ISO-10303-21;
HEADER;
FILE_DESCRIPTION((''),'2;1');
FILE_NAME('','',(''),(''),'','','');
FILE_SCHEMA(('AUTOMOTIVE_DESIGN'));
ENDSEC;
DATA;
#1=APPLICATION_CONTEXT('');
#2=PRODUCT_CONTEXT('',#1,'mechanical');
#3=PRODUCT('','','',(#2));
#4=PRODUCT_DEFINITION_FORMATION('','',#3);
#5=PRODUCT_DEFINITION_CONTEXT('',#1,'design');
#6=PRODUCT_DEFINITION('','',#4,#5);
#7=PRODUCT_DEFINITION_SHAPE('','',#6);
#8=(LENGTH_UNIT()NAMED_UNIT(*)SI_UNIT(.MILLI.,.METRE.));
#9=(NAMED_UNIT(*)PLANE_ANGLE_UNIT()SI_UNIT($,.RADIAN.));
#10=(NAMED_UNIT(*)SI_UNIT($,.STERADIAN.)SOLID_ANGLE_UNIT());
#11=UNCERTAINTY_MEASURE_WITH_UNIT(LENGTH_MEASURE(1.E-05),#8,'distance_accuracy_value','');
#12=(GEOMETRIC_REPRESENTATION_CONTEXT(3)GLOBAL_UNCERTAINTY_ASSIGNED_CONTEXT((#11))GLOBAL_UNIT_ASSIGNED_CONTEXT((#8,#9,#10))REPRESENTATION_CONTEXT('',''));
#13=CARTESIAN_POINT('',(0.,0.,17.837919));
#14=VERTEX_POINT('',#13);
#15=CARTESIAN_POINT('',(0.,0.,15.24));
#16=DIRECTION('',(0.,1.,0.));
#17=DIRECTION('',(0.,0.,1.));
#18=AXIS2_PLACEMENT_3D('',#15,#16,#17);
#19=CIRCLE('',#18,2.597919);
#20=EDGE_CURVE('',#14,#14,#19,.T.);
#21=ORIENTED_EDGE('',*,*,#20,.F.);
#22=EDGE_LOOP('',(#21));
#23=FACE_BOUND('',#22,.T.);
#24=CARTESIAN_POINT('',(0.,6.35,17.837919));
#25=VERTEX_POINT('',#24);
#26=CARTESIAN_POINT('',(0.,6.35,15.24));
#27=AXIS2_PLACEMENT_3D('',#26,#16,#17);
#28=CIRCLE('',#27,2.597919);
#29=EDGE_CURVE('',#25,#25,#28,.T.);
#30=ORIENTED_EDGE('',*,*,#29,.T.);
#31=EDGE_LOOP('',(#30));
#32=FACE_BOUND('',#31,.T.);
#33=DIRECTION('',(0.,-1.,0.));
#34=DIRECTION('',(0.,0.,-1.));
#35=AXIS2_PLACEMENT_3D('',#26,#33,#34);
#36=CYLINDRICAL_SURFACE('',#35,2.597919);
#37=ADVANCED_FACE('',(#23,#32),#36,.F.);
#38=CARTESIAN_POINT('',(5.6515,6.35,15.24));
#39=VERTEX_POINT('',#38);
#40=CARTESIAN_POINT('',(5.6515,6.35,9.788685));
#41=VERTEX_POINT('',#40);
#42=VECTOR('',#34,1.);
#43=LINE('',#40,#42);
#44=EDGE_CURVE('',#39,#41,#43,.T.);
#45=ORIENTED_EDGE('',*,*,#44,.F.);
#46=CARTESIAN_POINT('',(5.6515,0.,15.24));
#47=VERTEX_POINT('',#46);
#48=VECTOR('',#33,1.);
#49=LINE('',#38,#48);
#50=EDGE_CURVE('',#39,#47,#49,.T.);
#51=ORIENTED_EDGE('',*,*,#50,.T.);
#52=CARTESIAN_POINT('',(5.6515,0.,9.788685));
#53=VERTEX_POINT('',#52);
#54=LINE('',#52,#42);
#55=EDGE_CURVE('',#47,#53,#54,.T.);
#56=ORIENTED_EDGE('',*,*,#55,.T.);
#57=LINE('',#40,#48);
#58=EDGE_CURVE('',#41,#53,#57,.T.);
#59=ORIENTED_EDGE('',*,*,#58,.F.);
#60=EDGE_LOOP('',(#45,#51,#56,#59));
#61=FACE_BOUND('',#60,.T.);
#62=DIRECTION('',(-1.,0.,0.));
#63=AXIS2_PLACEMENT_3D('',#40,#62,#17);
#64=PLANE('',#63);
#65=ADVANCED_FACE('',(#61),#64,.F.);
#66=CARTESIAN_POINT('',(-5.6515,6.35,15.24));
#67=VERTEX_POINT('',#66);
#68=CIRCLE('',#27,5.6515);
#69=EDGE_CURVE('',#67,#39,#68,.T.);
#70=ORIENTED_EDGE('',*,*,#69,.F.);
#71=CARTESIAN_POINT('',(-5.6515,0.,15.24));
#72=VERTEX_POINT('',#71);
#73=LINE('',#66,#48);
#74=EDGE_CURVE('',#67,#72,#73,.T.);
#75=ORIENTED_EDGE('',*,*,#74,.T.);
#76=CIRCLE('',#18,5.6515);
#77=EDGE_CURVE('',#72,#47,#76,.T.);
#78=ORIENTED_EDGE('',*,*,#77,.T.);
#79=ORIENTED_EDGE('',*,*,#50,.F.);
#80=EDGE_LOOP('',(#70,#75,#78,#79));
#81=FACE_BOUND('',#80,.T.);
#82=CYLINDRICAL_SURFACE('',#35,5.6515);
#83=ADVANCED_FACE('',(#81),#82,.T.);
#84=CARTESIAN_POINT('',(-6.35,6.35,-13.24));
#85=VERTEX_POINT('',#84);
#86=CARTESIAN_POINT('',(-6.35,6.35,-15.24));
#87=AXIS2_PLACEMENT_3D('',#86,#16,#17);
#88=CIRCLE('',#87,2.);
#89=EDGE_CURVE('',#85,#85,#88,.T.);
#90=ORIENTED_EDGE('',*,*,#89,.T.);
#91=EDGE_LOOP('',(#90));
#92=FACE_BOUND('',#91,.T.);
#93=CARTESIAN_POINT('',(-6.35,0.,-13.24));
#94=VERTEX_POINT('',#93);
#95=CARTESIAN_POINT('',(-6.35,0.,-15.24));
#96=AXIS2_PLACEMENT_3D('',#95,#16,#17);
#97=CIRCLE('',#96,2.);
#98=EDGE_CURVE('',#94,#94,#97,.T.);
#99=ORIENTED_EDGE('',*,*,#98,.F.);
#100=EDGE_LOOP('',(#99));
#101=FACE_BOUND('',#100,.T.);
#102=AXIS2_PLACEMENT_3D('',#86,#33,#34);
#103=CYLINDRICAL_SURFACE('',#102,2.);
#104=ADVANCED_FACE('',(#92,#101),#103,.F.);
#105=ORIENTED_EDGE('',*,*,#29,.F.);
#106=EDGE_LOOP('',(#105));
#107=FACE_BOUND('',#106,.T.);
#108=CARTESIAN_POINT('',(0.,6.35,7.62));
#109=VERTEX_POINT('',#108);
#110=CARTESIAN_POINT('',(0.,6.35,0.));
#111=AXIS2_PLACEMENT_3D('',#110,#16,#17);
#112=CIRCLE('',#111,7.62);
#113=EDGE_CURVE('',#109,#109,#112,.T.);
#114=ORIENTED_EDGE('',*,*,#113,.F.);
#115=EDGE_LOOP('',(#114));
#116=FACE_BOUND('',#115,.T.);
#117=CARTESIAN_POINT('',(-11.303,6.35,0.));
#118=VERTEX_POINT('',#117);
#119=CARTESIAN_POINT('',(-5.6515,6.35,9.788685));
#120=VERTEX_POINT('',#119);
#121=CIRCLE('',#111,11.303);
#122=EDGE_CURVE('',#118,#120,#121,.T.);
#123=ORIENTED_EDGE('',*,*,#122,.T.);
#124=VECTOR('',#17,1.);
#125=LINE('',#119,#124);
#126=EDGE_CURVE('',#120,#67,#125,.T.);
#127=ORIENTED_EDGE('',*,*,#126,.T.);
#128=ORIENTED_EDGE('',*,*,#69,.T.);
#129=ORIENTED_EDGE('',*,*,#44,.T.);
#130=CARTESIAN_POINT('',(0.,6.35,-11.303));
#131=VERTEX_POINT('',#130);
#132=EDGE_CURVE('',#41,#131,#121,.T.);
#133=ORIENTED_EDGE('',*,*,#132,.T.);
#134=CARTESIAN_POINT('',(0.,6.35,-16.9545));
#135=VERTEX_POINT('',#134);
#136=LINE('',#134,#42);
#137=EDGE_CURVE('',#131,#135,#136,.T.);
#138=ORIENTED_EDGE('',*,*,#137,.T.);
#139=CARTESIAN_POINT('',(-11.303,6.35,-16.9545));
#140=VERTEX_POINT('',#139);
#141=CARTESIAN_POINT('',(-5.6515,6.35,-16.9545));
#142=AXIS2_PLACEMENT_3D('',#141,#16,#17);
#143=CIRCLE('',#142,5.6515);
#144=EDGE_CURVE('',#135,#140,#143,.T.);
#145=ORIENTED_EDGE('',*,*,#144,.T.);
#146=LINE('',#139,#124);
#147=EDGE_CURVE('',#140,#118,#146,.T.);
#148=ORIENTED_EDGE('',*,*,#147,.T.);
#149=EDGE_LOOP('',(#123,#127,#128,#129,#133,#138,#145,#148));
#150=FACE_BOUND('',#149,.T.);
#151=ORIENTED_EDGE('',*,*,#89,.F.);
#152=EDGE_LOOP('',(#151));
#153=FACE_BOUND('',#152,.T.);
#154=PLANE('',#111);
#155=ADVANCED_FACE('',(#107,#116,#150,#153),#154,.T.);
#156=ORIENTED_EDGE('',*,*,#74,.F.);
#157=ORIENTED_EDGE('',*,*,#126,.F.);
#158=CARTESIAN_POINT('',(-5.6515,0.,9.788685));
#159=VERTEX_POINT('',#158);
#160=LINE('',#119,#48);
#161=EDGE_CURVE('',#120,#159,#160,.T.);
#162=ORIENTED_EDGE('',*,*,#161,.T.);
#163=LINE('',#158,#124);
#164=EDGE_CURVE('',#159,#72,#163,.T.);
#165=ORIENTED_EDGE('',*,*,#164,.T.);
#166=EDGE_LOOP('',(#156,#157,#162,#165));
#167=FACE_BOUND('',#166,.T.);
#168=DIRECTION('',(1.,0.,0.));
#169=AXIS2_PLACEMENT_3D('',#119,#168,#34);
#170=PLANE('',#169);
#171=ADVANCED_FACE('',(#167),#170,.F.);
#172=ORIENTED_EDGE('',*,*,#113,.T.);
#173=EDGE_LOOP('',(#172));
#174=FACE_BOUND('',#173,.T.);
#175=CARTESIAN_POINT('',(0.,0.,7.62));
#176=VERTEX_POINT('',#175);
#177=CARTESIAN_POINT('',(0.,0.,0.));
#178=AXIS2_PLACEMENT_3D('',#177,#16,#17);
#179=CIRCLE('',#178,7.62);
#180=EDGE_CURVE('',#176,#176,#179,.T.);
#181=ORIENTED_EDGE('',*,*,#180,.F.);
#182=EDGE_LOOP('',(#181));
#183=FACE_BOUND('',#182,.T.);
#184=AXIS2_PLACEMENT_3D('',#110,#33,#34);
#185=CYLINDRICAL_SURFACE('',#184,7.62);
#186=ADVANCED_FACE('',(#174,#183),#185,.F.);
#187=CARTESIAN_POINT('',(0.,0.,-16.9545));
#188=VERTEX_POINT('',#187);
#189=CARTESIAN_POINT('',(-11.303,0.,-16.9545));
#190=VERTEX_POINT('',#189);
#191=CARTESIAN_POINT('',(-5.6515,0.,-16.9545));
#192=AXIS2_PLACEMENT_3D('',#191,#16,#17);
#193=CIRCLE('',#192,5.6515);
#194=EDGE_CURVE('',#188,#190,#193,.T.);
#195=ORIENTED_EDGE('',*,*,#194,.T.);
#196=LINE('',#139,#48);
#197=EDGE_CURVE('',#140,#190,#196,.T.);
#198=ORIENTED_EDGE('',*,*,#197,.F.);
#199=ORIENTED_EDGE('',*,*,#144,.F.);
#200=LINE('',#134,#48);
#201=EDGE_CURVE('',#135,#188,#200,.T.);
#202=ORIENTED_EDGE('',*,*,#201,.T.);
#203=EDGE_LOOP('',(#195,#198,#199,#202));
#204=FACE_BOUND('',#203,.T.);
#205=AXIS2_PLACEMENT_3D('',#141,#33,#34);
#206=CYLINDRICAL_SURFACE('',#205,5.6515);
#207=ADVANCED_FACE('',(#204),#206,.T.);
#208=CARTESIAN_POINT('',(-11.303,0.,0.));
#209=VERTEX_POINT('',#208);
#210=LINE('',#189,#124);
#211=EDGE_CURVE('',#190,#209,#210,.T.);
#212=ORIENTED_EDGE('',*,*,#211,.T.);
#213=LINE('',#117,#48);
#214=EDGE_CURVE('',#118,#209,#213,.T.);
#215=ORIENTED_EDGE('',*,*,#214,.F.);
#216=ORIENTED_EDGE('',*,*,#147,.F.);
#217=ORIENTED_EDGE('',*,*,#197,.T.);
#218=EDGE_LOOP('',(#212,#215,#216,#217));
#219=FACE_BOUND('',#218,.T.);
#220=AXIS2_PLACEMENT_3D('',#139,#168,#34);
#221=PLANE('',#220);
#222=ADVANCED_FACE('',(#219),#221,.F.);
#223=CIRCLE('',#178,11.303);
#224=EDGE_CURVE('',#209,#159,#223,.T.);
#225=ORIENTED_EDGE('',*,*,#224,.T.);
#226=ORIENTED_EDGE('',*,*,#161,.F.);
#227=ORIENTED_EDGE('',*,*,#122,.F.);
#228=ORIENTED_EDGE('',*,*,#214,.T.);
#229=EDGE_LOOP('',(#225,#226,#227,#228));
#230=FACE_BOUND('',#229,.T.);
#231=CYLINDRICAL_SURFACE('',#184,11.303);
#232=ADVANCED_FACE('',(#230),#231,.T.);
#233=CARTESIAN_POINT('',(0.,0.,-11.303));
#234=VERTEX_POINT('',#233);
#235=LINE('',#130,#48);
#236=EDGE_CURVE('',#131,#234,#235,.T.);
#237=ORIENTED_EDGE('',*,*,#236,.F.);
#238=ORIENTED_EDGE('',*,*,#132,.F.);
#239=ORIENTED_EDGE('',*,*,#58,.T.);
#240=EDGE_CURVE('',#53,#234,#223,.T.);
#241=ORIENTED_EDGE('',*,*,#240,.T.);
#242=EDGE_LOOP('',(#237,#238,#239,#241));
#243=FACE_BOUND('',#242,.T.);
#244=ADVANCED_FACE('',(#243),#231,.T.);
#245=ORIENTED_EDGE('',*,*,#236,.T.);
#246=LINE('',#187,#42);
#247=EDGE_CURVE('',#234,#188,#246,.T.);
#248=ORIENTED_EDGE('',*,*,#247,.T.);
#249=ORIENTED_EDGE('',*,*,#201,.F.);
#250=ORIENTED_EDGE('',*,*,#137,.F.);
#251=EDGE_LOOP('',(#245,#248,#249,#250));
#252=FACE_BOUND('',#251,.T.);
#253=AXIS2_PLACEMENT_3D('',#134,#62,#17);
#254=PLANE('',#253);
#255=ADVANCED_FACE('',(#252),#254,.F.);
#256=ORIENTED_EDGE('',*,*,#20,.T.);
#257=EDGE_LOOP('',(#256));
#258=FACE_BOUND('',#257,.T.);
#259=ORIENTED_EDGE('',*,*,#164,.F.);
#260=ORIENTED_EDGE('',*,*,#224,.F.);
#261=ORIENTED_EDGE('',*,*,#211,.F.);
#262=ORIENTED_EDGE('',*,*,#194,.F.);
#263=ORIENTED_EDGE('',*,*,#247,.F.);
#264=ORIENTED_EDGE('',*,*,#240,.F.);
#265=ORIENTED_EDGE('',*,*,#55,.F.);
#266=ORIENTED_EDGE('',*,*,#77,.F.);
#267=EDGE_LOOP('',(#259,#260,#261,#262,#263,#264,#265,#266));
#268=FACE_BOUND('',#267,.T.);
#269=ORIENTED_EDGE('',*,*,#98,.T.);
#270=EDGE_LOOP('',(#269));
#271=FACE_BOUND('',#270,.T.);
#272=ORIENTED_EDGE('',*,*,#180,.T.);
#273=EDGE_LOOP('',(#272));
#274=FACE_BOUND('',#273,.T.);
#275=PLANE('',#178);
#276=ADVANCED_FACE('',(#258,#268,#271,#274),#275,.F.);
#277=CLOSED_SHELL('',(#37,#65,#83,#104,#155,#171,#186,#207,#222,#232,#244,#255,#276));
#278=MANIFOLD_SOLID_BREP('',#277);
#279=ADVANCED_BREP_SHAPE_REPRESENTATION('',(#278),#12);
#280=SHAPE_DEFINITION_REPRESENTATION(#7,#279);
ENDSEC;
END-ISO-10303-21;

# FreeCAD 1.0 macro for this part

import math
import FreeCAD as App
import Part
import Sketcher

V = App.Vector
Q = App.Units.Quantity

doc = App.newDocument("Part")
body = doc.addObject("PartDesign::Body", "Body")

# Sketch on XZ plane
sketch1 = body.newObject("Sketcher::SketchObject", "Sketch")
sketch1.AttachmentSupport = (doc.getObject("XZ_Plane"), [""])
sketch1.MapMode = "FlatFace"
sketch1.addGeometry([
    Part.LineSegment(V(-11.3, -17, 0), V(-11.3, 0, 0)),  # 0
    Part.ArcOfCircle(Part.Circle(V(0, 0, 0), V(0, 0, 1), 11.3), math.radians(120), math.radians(180)),  # 1
    Part.LineSegment(V(-5.7, 9.8, 0), V(-5.7, 15.2, 0)),  # 2
    Part.ArcOfCircle(Part.Circle(V(0, 15.2, 0), V(0, 0, 1), 5.7), math.radians(0), math.radians(180)),  # 3
    Part.LineSegment(V(5.7, 15.2, 0), V(5.7, 9.8, 0)),  # 4
    Part.ArcOfCircle(Part.Circle(V(0, 0, 0), V(0, 0, 1), 11.3), math.radians(-90), math.radians(60)),  # 5
    Part.LineSegment(V(0, -11.3, 0), V(0, -17, 0)),  # 6
    Part.ArcOfCircle(Part.Circle(V(-5.7, -17, 0), V(0, 0, 1), 5.7), math.radians(180), math.radians(360)),  # 7
    Part.Circle(V(0, 15.2, 0), V(0, 0, 1), 2.6),  # 8
    Part.Circle(V(-6.3, -15.2, 0), V(0, 0, 1), 2),  # 9
    Part.Circle(V(0, 0, 0), V(0, 0, 1), 7.6),  # 10
], False)
sketch1.addConstraint([
    Sketcher.Constraint("Tangent", 0, 2, 1, 2),
    Sketcher.Constraint("Coincident", 1, 1, 2, 1),
    Sketcher.Constraint("Tangent", 2, 2, 3, 2),
    Sketcher.Constraint("Tangent", 3, 1, 4, 1),
    Sketcher.Constraint("Coincident", 4, 2, 5, 2),
    Sketcher.Constraint("Coincident", 5, 1, 6, 1),
    Sketcher.Constraint("Tangent", 6, 2, 7, 2),
    Sketcher.Constraint("Tangent", 7, 1, 0, 1),
    Sketcher.Constraint("Vertical", 0),
    Sketcher.Constraint("Vertical", 2),
    Sketcher.Constraint("Vertical", 4),
    Sketcher.Constraint("Vertical", 6),
    Sketcher.Constraint("Coincident", 1, 3, -1, 1),
    Sketcher.Constraint("Coincident", 5, 3, -1, 1),
    Sketcher.Constraint("Coincident", 10, 3, -1, 1),
    Sketcher.Constraint("Coincident", 8, 3, 3, 3),
    Sketcher.Constraint("Equal", 1, 5),
    Sketcher.Constraint("Equal", 3, 7),
    Sketcher.Constraint("PointOnObject", 3, 3, -2),
    Sketcher.Constraint("PointOnObject", 5, 1, -2),
    Sketcher.Constraint("Diameter", 10, Q("0.6 in")),
    Sketcher.Constraint("Radius", 1, Q("0.445 in")),
    Sketcher.Constraint("DistanceY", -1, 1, 3, 3, Q("0.6 in")),
    Sketcher.Constraint("DistanceY", 9, 3, -1, 1, Q("0.6 in")),
    Sketcher.Constraint("Diameter", 9, Q("4 mm")),
    Sketcher.Constraint("DistanceX", 9, 3, -1, 1, Q("0.25 in")),
    Sketcher.Constraint("Diameter", 8, Q("5.195838 mm")),
    Sketcher.Constraint("DistanceY", 0, 1, 0, 2, Q("0.6675 in")),
])
pad1 = body.newObject("PartDesign::Pad", "Pad")
pad1.Profile = sketch1
pad1.Length = Q("0.25 in")
pad1.Reversed = True

doc.recompute()
